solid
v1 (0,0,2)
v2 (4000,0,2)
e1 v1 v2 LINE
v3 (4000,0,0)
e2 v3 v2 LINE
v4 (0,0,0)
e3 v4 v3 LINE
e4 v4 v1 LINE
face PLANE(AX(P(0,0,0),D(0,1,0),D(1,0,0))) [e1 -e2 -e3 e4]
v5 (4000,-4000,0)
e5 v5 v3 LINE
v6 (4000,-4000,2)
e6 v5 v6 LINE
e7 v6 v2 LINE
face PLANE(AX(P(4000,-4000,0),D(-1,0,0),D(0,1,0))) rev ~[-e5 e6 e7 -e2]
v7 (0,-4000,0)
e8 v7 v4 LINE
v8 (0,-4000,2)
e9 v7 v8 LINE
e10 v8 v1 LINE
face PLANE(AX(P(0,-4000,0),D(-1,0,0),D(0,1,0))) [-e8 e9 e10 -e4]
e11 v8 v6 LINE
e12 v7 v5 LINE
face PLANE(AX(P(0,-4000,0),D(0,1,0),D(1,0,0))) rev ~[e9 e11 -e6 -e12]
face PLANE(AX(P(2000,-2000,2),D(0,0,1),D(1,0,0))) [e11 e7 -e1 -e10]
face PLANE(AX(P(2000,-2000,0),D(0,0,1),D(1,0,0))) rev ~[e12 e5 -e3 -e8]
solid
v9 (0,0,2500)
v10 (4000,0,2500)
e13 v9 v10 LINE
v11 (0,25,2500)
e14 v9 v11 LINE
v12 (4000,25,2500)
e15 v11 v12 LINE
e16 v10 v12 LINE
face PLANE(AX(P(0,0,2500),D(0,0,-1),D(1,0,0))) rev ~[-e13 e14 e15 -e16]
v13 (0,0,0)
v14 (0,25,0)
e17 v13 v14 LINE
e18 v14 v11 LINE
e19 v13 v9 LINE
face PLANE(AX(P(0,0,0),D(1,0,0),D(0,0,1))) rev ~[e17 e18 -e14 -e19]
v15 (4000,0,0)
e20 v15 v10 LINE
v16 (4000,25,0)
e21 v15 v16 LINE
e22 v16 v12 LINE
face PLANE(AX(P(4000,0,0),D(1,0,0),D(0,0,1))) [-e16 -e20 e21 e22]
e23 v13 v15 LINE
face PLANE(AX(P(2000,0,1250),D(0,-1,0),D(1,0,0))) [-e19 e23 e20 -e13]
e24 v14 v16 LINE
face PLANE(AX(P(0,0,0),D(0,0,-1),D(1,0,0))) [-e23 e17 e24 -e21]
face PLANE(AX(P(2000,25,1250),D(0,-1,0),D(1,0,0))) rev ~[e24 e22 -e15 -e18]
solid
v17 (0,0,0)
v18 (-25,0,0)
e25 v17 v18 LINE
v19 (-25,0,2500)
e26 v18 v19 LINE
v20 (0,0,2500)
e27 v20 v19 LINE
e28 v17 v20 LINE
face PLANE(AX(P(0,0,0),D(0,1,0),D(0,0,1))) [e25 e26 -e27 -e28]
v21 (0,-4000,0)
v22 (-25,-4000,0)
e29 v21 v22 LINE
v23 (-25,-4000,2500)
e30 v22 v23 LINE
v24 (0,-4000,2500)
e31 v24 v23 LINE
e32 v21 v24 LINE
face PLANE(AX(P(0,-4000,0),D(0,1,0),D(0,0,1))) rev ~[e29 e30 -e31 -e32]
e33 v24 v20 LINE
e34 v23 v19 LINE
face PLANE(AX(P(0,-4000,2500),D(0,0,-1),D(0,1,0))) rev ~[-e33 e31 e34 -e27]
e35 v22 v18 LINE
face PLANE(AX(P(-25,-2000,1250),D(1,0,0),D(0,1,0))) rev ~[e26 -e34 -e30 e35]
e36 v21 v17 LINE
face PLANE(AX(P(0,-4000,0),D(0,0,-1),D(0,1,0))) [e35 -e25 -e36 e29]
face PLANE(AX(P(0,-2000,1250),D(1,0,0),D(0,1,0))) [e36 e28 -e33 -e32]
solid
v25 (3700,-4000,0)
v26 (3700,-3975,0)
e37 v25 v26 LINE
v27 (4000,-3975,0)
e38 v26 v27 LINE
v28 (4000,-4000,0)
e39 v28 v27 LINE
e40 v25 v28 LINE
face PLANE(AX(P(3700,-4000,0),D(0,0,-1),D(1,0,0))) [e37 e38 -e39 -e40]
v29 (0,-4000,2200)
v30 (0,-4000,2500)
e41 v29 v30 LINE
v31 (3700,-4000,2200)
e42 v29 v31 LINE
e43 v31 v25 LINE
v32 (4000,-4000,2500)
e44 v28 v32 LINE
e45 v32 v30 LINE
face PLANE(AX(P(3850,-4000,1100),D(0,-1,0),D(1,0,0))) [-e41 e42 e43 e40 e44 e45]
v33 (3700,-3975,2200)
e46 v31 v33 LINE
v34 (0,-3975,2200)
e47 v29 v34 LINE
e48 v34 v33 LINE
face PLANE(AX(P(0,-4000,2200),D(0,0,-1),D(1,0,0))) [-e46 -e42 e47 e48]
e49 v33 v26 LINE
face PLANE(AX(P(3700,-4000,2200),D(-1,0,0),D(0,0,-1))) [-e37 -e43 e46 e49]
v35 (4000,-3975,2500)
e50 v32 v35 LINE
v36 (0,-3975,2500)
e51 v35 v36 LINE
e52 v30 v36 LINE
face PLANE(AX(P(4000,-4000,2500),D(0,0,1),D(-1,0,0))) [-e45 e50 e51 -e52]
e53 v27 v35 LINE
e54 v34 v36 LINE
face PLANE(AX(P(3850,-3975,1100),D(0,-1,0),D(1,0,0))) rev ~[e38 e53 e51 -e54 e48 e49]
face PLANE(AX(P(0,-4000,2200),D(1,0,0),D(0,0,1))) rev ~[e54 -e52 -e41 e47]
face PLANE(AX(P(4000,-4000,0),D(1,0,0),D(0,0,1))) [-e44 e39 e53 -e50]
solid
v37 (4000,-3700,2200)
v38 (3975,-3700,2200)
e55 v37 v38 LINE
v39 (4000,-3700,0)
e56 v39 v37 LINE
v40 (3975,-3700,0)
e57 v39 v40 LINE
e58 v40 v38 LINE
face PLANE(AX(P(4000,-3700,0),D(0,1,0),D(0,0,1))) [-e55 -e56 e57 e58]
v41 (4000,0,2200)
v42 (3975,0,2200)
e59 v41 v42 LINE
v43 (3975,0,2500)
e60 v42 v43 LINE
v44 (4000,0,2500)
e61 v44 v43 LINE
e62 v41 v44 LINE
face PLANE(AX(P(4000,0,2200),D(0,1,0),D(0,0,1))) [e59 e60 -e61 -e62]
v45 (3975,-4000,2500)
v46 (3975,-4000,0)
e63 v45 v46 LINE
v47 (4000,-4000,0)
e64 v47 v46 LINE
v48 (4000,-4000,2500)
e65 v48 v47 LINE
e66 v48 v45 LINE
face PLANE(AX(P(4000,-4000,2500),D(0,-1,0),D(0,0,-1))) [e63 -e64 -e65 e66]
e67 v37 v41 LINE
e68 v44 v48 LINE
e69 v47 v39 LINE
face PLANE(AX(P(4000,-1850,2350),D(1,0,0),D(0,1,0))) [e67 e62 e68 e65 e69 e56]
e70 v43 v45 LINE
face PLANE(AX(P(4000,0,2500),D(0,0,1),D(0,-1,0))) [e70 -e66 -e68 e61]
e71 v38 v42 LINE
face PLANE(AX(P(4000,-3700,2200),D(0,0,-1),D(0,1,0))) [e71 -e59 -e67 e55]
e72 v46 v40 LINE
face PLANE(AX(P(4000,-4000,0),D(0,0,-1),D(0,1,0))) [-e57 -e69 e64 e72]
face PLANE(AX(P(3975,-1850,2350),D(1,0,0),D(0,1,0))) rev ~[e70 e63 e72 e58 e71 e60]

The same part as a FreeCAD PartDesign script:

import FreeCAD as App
import Part
import Sketcher

doc = App.newDocument("Part")
body = doc.addObject("PartDesign::Body", "Body")

# Sketch on XY plane
sketch1 = body.newObject("Sketcher::SketchObject", "Sketch")
sketch1.AttachmentSupport = (doc.getObject("XY_Plane"), [""])
sketch1.MapMode = "FlatFace"
sketch1.addGeometry(Part.LineSegment(App.Vector(0, 0, 0), App.Vector(0, -4000, 0)), False)
sketch1.addGeometry(Part.LineSegment(App.Vector(0, -4000, 0), App.Vector(4000, -4000, 0)), False)
sketch1.addGeometry(Part.LineSegment(App.Vector(4000, -4000, 0), App.Vector(4000, 0, 0)), False)
sketch1.addGeometry(Part.LineSegment(App.Vector(4000, 0, 0), App.Vector(0, 0, 0)), False)
sketch1.addConstraint(Sketcher.Constraint("Coincident", 0, 2, 1, 1))
sketch1.addConstraint(Sketcher.Constraint("Coincident", 1, 2, 2, 1))
sketch1.addConstraint(Sketcher.Constraint("Coincident", 2, 2, 3, 1))
sketch1.addConstraint(Sketcher.Constraint("Coincident", 3, 2, 0, 1))
sketch1.addConstraint(Sketcher.Constraint("Vertical", 0))
sketch1.addConstraint(Sketcher.Constraint("Horizontal", 1))
sketch1.addConstraint(Sketcher.Constraint("Vertical", 2))
sketch1.addConstraint(Sketcher.Constraint("Horizontal", 3))
sketch1.addConstraint(Sketcher.Constraint("Coincident", 3, 2, -1, 1))
sketch1.addConstraint(Sketcher.Constraint("Equal", 3, 0))
sketch1.addConstraint(Sketcher.Constraint("DistanceX", 1, 1, 1, 2, 4000.0))
pad1 = body.newObject("PartDesign::Pad", "Pad")
pad1.Profile = sketch1
pad1.Length = 2
body2 = doc.addObject("PartDesign::Body", "Body001")

# Sketch on YZ plane
sketch2 = body2.newObject("Sketcher::SketchObject", "Sketch001")
sketch2.AttachmentSupport = (doc.getObject("YZ_Plane001"), [""])
sketch2.MapMode = "FlatFace"
sketch2.addGeometry(Part.LineSegment(App.Vector(-4000, 2500, 0), App.Vector(-4000, 0, 0)), False)
sketch2.addGeometry(Part.LineSegment(App.Vector(-4000, 0, 0), App.Vector(0, 0, 0)), False)
sketch2.addGeometry(Part.LineSegment(App.Vector(0, 0, 0), App.Vector(0, 2500, 0)), False)
sketch2.addGeometry(Part.LineSegment(App.Vector(0, 2500, 0), App.Vector(-4000, 2500, 0)), False)
sketch2.addConstraint(Sketcher.Constraint("Coincident", 0, 2, 1, 1))
sketch2.addConstraint(Sketcher.Constraint("Coincident", 1, 2, 2, 1))
sketch2.addConstraint(Sketcher.Constraint("Coincident", 2, 2, 3, 1))
sketch2.addConstraint(Sketcher.Constraint("Coincident", 3, 2, 0, 1))
sketch2.addConstraint(Sketcher.Constraint("Vertical", 0))
sketch2.addConstraint(Sketcher.Constraint("Horizontal", 1))
sketch2.addConstraint(Sketcher.Constraint("Vertical", 2))
sketch2.addConstraint(Sketcher.Constraint("Horizontal", 3))
sketch2.addConstraint(Sketcher.Constraint("Coincident", 1, 2, -1, 1))
sketch2.addConstraint(Sketcher.Constraint("DistanceX", 1, 1, 1, 2, 4000.0))
sketch2.addConstraint(Sketcher.Constraint("DistanceY", 0, 2, 0, 1, 2500.0))
pad2 = body2.newObject("PartDesign::Pad", "Pad001")
pad2.Profile = sketch2
pad2.Length = 25
pad2.Reversed = True
body3 = doc.addObject("PartDesign::Body", "Body002")

# Sketch on XZ plane
sketch3 = body3.newObject("Sketcher::SketchObject", "Sketch002")
sketch3.AttachmentSupport = (doc.getObject("XZ_Plane002"), [""])
sketch3.MapMode = "FlatFace"
sketch3.addGeometry(Part.LineSegment(App.Vector(0, 2500, 0), App.Vector(0, 0, 0)), False)
sketch3.addGeometry(Part.LineSegment(App.Vector(0, 0, 0), App.Vector(4000, 0, 0)), False)
sketch3.addGeometry(Part.LineSegment(App.Vector(4000, 0, 0), App.Vector(4000, 2500, 0)), False)
sketch3.addGeometry(Part.LineSegment(App.Vector(4000, 2500, 0), App.Vector(0, 2500, 0)), False)
sketch3.addConstraint(Sketcher.Constraint("Coincident", 0, 2, 1, 1))
sketch3.addConstraint(Sketcher.Constraint("Coincident", 1, 2, 2, 1))
sketch3.addConstraint(Sketcher.Constraint("Coincident", 2, 2, 3, 1))
sketch3.addConstraint(Sketcher.Constraint("Coincident", 3, 2, 0, 1))
sketch3.addConstraint(Sketcher.Constraint("Vertical", 0))
sketch3.addConstraint(Sketcher.Constraint("Horizontal", 1))
sketch3.addConstraint(Sketcher.Constraint("Vertical", 2))
sketch3.addConstraint(Sketcher.Constraint("Horizontal", 3))
sketch3.addConstraint(Sketcher.Constraint("Coincident", 0, 2, -1, 1))
sketch3.addConstraint(Sketcher.Constraint("DistanceX", 1, 1, 1, 2, 4000.0))
sketch3.addConstraint(Sketcher.Constraint("DistanceY", 0, 2, 0, 1, 2500.0))
pad3 = body3.newObject("PartDesign::Pad", "Pad002")
pad3.Profile = sketch3
pad3.Length = 25
pad3.Reversed = True
body4 = doc.addObject("PartDesign::Body", "Body003")

# Sketch on XZ plane
sketch4 = body4.newObject("Sketcher::SketchObject", "Sketch003")
sketch4.AttachmentSupport = (doc.getObject("XZ_Plane003"), [""])
sketch4.MapMode = "FlatFace"
sketch4.AttachmentOffset = App.Placement(App.Vector(0, 0, 4000), App.Rotation())
sketch4.addGeometry(Part.LineSegment(App.Vector(3700, 0, 0), App.Vector(4000, 0, 0)), False)
sketch4.addGeometry(Part.LineSegment(App.Vector(4000, 0, 0), App.Vector(4000, 2500, 0)), False)
sketch4.addGeometry(Part.LineSegment(App.Vector(4000, 2500, 0), App.Vector(0, 2500, 0)), False)
sketch4.addGeometry(Part.LineSegment(App.Vector(0, 2500, 0), App.Vector(0, 2200, 0)), False)
sketch4.addGeometry(Part.LineSegment(App.Vector(0, 2200, 0), App.Vector(3700, 2200, 0)), False)
sketch4.addGeometry(Part.LineSegment(App.Vector(3700, 2200, 0), App.Vector(3700, 0, 0)), False)
sketch4.addConstraint(Sketcher.Constraint("Coincident", 0, 2, 1, 1))
sketch4.addConstraint(Sketcher.Constraint("Coincident", 1, 2, 2, 1))
sketch4.addConstraint(Sketcher.Constraint("Coincident", 2, 2, 3, 1))
sketch4.addConstraint(Sketcher.Constraint("Coincident", 3, 2, 4, 1))
sketch4.addConstraint(Sketcher.Constraint("Coincident", 4, 2, 5, 1))
sketch4.addConstraint(Sketcher.Constraint("Coincident", 5, 2, 0, 1))
sketch4.addConstraint(Sketcher.Constraint("Horizontal", 0))
sketch4.addConstraint(Sketcher.Constraint("Vertical", 1))
sketch4.addConstraint(Sketcher.Constraint("Horizontal", 2))
sketch4.addConstraint(Sketcher.Constraint("Vertical", 3))
sketch4.addConstraint(Sketcher.Constraint("Horizontal", 4))
sketch4.addConstraint(Sketcher.Constraint("Vertical", 5))
sketch4.addConstraint(Sketcher.Constraint("PointOnObject", 0, 2, -1))
sketch4.addConstraint(Sketcher.Constraint("PointOnObject", 2, 2, -2))
sketch4.addConstraint(Sketcher.Constraint("Equal", 0, 3))
sketch4.addConstraint(Sketcher.Constraint("DistanceX", 0, 1, 0, 2, 300.0))
sketch4.addConstraint(Sketcher.Constraint("DistanceX", 2, 2, 2, 1, 4000.0))
sketch4.addConstraint(Sketcher.Constraint("DistanceY", 1, 1, 1, 2, 2500.0))
pad4 = body4.newObject("PartDesign::Pad", "Pad003")
pad4.Profile = sketch4
pad4.Length = 25
pad4.Reversed = True
body5 = doc.addObject("PartDesign::Body", "Body004")

# Sketch on YZ plane
sketch5 = body5.newObject("Sketcher::SketchObject", "Sketch004")
sketch5.AttachmentSupport = (doc.getObject("YZ_Plane004"), [""])
sketch5.MapMode = "FlatFace"
sketch5.AttachmentOffset = App.Placement(App.Vector(0, 0, 4000), App.Rotation())
sketch5.addGeometry(Part.LineSegment(App.Vector(0, 2200, 0), App.Vector(0, 2500, 0)), False)
sketch5.addGeometry(Part.LineSegment(App.Vector(0, 2500, 0), App.Vector(-4000, 2500, 0)), False)
sketch5.addGeometry(Part.LineSegment(App.Vector(-4000, 2500, 0), App.Vector(-4000, 0, 0)), False)
sketch5.addGeometry(Part.LineSegment(App.Vector(-4000, 0, 0), App.Vector(-3700, 0, 0)), False)
sketch5.addGeometry(Part.LineSegment(App.Vector(-3700, 0, 0), App.Vector(-3700, 2200, 0)), False)
sketch5.addGeometry(Part.LineSegment(App.Vector(-3700, 2200, 0), App.Vector(0, 2200, 0)), False)
sketch5.addConstraint(Sketcher.Constraint("Coincident", 0, 2, 1, 1))
sketch5.addConstraint(Sketcher.Constraint("Coincident", 1, 2, 2, 1))
sketch5.addConstraint(Sketcher.Constraint("Coincident", 2, 2, 3, 1))
sketch5.addConstraint(Sketcher.Constraint("Coincident", 3, 2, 4, 1))
sketch5.addConstraint(Sketcher.Constraint("Coincident", 4, 2, 5, 1))
sketch5.addConstraint(Sketcher.Constraint("Coincident", 5, 2, 0, 1))
sketch5.addConstraint(Sketcher.Constraint("Vertical", 0))
sketch5.addConstraint(Sketcher.Constraint("Horizontal", 1))
sketch5.addConstraint(Sketcher.Constraint("Vertical", 2))
sketch5.addConstraint(Sketcher.Constraint("Horizontal", 3))
sketch5.addConstraint(Sketcher.Constraint("Vertical", 4))
sketch5.addConstraint(Sketcher.Constraint("Horizontal", 5))
sketch5.addConstraint(Sketcher.Constraint("PointOnObject", 0, 2, -2))
sketch5.addConstraint(Sketcher.Constraint("PointOnObject", 2, 2, -1))
sketch5.addConstraint(Sketcher.Constraint("Equal", 3, 0))
sketch5.addConstraint(Sketcher.Constraint("DistanceX", 1, 2, 1, 1, 4000.0))
sketch5.addConstraint(Sketcher.Constraint("DistanceX", 3, 1, 3, 2, 300.0))
sketch5.addConstraint(Sketcher.Constraint("DistanceY", 2, 2, 2, 1, 2500.0))
pad5 = body5.newObject("PartDesign::Pad", "Pad004")
pad5.Profile = sketch5
pad5.Length = 25
pad5.Reversed = True

doc.recompute()
